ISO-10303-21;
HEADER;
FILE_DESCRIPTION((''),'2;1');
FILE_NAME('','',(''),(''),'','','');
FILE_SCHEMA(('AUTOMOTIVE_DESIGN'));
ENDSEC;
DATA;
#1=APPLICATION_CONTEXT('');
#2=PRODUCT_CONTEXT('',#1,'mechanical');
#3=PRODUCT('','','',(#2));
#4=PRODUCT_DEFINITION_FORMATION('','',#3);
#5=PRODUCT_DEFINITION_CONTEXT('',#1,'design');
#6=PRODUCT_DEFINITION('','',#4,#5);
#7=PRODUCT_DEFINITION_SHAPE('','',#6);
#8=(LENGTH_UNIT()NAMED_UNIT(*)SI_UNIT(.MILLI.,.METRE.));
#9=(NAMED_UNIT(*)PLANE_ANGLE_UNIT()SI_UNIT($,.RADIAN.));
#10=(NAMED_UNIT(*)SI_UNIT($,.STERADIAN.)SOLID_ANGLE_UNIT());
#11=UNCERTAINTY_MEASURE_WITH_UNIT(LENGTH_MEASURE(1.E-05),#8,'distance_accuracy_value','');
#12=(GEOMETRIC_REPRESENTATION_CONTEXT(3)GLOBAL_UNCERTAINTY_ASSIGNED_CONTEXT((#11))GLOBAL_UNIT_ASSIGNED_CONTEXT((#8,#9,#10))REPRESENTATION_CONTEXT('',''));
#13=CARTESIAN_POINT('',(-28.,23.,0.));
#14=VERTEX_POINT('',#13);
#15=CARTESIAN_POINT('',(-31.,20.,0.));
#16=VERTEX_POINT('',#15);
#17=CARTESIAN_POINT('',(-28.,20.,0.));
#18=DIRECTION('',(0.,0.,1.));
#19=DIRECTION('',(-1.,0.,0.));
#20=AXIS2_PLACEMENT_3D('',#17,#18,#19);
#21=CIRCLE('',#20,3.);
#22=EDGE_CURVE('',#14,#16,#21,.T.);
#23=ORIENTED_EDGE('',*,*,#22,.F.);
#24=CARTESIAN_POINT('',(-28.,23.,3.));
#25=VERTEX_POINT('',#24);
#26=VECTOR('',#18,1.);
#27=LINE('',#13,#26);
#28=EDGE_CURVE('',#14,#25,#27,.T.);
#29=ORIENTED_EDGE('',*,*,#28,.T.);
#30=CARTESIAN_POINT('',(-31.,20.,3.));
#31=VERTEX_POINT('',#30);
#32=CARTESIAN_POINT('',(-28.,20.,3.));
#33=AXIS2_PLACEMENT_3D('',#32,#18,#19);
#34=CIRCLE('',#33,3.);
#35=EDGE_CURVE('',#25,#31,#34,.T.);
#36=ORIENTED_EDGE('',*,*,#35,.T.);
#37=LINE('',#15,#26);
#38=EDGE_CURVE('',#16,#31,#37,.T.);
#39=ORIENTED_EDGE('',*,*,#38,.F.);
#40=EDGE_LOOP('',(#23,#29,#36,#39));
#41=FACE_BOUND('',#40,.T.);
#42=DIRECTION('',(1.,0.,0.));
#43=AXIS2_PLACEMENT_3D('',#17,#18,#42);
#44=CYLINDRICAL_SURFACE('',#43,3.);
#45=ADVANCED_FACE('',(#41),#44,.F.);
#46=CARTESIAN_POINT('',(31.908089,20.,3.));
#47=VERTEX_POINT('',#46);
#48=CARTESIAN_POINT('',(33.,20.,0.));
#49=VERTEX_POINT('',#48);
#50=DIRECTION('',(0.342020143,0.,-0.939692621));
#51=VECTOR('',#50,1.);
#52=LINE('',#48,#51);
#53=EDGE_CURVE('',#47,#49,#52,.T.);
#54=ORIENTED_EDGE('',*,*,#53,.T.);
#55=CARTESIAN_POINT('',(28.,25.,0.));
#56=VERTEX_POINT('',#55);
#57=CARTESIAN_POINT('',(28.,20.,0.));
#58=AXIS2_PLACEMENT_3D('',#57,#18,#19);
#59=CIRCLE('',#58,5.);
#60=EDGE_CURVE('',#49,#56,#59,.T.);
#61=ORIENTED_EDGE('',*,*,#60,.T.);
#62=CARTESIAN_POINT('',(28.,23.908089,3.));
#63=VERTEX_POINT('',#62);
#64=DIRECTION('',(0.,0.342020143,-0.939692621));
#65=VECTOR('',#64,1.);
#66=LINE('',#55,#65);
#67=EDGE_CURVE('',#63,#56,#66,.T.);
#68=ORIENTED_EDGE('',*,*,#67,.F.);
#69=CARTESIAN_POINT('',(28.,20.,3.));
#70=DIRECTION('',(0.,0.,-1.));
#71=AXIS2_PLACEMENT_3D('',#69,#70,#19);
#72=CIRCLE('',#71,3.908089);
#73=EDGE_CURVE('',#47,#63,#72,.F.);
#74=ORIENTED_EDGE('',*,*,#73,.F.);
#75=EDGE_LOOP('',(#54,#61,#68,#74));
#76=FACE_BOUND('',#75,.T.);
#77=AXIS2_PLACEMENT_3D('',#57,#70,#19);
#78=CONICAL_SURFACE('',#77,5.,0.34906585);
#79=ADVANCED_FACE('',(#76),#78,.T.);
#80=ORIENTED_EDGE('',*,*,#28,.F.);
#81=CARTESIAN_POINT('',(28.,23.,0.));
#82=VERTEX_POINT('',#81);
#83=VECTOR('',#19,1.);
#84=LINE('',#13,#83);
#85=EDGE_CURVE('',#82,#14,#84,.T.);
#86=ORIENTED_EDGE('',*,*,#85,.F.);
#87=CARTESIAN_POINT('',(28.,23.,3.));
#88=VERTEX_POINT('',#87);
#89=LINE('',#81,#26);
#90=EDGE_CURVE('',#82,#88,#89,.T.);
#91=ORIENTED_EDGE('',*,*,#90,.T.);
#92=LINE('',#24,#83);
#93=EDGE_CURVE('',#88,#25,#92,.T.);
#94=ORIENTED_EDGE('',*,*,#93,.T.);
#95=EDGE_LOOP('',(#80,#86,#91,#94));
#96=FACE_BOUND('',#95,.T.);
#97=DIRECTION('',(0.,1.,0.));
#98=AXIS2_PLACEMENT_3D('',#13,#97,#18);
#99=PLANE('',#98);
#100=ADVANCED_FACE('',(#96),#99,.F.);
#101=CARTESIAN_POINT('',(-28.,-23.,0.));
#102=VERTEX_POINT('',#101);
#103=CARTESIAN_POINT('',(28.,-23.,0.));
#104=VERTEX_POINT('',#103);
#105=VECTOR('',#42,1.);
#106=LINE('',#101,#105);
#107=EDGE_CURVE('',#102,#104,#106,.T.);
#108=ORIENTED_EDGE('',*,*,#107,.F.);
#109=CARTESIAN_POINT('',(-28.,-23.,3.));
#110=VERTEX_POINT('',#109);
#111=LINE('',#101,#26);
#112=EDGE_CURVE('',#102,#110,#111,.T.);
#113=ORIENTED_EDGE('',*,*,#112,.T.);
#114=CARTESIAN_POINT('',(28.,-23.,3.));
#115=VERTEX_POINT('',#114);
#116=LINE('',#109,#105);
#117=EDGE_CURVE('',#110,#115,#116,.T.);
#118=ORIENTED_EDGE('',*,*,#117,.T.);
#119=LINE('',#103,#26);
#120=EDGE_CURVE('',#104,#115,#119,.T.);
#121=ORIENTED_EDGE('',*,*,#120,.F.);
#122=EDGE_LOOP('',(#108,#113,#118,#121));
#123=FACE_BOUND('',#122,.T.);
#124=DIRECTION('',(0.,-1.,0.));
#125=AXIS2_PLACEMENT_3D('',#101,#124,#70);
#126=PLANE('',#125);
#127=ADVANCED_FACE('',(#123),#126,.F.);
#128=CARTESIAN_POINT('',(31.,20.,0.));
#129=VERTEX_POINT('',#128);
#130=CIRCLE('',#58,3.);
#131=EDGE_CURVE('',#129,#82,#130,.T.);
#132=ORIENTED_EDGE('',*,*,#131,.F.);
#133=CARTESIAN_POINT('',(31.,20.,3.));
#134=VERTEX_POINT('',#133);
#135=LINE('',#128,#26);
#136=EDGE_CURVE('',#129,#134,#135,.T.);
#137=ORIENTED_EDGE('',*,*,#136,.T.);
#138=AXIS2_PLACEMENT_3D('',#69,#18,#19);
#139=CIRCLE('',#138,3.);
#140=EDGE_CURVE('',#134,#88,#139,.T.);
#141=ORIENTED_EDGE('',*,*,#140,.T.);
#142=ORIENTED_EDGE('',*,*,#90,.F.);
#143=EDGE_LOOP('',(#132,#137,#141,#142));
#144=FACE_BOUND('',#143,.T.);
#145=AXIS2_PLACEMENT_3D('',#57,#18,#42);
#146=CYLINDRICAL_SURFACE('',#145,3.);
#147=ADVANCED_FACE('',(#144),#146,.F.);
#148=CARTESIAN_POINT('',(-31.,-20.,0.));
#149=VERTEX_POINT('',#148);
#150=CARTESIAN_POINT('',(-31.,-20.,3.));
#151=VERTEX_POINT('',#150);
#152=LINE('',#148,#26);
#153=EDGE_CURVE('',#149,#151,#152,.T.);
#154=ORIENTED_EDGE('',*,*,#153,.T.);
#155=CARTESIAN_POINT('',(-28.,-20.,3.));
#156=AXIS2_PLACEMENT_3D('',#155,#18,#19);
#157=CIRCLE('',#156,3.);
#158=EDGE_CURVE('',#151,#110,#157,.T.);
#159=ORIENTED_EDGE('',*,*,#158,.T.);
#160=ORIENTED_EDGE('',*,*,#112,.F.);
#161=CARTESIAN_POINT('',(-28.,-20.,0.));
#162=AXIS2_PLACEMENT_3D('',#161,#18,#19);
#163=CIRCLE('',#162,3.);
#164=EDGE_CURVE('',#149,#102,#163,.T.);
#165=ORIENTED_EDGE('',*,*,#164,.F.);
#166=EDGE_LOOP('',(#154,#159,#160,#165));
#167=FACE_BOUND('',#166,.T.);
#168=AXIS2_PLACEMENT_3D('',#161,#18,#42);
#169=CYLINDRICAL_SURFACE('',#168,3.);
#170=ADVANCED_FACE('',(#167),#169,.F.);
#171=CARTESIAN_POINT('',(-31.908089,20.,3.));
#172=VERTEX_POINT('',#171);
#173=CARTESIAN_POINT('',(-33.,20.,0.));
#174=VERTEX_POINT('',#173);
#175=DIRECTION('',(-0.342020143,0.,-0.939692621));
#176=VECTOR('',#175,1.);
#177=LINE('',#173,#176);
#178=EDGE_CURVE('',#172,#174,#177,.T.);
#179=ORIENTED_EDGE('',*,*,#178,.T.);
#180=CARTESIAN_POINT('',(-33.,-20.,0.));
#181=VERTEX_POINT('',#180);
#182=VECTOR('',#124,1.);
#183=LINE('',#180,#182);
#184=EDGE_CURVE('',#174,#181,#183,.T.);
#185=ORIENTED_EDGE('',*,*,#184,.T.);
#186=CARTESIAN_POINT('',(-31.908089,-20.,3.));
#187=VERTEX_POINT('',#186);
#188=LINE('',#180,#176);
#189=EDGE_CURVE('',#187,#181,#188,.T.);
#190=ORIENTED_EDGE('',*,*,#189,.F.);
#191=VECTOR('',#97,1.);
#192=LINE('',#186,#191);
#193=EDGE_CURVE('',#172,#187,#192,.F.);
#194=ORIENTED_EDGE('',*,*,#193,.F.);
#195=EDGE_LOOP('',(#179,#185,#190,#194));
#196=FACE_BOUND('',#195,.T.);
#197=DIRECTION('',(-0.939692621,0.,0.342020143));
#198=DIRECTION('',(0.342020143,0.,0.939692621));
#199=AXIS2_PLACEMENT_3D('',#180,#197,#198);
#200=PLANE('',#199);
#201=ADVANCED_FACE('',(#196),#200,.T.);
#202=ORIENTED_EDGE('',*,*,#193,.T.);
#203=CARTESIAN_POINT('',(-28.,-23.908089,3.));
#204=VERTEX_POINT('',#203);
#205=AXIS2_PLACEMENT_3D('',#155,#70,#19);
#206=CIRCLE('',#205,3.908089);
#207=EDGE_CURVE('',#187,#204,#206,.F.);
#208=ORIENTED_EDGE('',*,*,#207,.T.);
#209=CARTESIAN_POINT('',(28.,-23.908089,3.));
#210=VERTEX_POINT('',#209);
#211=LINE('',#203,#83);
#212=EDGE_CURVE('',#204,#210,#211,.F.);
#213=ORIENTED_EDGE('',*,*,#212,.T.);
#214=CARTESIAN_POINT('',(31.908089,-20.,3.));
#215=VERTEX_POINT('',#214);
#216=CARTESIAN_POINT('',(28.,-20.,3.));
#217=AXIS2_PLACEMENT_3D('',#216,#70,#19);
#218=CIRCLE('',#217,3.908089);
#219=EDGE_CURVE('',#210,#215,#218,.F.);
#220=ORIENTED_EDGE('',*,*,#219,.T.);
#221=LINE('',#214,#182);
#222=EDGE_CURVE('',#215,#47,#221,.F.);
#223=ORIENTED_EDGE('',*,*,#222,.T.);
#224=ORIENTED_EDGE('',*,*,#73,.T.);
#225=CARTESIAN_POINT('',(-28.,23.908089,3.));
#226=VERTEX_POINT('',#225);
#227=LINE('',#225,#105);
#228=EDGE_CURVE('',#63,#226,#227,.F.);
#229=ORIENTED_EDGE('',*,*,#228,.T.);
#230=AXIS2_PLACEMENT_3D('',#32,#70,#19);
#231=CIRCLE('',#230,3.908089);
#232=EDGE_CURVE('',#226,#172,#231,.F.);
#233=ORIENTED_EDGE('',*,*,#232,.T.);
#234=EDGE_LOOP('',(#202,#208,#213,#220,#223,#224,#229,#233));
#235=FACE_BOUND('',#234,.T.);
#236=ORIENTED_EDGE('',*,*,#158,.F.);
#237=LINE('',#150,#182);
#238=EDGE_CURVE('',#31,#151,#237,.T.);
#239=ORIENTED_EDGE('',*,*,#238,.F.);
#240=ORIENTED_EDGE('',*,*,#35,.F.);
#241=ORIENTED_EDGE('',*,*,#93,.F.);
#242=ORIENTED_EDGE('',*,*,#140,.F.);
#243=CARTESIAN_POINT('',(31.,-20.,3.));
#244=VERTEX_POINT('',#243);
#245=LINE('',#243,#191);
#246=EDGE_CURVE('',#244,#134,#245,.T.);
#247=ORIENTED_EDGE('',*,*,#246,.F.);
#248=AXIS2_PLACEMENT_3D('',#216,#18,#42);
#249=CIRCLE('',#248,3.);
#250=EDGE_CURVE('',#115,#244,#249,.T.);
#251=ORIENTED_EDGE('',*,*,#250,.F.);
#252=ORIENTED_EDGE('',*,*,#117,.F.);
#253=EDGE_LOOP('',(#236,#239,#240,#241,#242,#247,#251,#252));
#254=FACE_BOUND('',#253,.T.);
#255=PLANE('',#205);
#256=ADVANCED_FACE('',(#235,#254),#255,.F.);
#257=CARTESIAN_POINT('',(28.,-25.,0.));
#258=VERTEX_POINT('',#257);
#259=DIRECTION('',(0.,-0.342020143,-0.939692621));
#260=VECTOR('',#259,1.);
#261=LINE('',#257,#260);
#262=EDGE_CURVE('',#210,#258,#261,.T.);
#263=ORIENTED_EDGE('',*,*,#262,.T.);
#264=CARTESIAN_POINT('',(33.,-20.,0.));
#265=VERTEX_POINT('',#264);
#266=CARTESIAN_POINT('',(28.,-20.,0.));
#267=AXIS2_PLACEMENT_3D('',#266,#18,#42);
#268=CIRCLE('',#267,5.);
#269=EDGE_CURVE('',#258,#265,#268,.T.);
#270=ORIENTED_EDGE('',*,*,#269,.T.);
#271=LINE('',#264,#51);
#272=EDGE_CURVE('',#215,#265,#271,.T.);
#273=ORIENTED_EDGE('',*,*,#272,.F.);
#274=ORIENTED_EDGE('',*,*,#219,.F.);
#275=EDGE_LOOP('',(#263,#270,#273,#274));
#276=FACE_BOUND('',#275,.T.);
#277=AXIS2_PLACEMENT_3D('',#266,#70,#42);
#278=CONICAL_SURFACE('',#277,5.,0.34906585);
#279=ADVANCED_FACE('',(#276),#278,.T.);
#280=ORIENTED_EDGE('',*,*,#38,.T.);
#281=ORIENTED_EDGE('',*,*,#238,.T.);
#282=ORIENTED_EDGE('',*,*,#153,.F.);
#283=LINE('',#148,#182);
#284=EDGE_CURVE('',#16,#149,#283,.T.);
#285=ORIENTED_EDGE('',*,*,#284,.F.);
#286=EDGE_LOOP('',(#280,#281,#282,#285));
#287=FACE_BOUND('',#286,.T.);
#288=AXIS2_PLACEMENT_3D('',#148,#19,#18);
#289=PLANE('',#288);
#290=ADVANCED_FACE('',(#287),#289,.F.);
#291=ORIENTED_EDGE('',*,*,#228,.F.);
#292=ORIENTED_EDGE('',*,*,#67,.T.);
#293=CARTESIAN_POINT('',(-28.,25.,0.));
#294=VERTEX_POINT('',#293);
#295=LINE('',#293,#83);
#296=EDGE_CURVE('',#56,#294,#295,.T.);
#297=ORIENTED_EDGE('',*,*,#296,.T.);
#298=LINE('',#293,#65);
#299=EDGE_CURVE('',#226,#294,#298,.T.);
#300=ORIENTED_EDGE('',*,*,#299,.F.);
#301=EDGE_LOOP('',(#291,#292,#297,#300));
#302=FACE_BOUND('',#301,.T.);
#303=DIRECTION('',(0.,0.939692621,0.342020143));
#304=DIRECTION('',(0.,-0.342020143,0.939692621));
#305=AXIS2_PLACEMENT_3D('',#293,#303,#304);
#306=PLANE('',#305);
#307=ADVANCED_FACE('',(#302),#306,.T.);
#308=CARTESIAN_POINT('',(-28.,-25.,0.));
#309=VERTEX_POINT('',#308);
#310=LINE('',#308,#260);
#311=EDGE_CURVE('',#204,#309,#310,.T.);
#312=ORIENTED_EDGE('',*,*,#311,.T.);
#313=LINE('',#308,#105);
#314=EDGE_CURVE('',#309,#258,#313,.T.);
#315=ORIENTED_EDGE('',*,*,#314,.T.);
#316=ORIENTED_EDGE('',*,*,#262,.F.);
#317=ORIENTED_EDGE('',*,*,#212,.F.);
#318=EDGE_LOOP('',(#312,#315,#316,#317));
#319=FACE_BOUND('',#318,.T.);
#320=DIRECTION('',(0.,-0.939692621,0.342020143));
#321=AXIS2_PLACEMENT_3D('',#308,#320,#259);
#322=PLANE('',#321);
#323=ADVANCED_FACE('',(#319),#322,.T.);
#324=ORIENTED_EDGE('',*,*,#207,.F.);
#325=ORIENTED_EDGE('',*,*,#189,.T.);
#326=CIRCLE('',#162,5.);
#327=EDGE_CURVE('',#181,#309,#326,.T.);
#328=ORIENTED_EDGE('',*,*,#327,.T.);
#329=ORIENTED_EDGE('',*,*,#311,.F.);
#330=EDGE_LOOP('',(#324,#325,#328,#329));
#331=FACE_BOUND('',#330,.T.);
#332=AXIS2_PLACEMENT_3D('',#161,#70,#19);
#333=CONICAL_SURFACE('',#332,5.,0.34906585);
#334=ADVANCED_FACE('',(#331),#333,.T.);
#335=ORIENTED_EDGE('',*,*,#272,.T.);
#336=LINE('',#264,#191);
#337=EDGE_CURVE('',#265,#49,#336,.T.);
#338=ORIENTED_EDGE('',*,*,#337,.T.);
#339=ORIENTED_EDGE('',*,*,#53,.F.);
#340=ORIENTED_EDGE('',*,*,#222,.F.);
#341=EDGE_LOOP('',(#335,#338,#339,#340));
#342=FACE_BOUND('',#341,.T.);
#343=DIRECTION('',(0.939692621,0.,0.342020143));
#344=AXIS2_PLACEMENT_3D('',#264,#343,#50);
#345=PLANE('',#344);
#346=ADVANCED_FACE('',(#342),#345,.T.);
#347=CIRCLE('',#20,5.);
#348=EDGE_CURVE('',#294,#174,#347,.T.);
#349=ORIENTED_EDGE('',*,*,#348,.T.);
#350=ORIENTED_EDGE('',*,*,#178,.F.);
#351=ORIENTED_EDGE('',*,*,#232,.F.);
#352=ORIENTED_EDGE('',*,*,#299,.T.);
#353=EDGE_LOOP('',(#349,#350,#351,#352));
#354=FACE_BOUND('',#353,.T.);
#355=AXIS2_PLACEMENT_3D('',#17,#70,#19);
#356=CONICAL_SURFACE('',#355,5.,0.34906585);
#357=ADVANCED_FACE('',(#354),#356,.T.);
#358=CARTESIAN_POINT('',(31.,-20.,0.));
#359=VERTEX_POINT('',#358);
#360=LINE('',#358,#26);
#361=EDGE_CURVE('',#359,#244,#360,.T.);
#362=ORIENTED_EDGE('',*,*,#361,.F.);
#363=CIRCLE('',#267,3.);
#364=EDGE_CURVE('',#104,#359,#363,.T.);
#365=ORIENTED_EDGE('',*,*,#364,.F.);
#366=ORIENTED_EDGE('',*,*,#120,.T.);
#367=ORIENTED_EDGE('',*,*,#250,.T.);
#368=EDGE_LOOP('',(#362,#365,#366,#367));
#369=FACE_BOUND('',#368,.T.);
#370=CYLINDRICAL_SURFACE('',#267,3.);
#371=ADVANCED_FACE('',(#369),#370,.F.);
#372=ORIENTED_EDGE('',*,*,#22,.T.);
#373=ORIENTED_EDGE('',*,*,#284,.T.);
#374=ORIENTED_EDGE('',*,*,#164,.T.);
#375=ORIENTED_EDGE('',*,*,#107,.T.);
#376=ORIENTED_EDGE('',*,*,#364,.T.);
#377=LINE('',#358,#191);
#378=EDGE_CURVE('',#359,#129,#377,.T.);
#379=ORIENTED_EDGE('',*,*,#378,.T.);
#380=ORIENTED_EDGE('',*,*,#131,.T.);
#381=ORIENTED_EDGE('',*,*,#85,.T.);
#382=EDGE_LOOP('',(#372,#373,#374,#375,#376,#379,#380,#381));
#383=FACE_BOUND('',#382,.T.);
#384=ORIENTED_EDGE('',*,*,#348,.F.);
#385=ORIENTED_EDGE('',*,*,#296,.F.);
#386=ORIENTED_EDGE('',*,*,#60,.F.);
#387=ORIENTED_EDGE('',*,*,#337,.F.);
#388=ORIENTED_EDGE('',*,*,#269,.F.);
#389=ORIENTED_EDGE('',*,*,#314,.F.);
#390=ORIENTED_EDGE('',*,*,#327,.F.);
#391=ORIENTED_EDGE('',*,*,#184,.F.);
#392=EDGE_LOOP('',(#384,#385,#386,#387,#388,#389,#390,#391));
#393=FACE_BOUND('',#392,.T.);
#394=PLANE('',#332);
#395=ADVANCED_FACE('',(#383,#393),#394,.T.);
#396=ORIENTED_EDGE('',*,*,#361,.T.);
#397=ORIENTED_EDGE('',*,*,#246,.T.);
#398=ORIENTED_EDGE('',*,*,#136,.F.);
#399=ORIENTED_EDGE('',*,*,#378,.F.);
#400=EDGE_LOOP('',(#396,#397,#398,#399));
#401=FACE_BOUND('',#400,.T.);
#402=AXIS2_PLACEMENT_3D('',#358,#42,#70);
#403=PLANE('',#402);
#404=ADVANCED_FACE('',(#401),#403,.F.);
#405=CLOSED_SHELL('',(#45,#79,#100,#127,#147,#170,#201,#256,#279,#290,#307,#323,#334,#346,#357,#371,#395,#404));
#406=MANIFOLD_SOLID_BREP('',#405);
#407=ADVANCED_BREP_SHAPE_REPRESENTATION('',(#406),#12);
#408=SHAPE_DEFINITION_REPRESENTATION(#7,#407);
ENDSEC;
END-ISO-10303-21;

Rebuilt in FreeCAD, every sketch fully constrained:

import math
import FreeCAD as App
import Part
import Sketcher
Q = App.Units.Quantity

doc = App.newDocument("Part")
params = doc.addObject("Spreadsheet::Sheet", "Params")
for row, (alias, value) in enumerate([
    ("sketch1_radius", "5 mm"),
    ("sketch1_width", "56 mm"),
    ("sketch1_height", "40 mm"),
    ("pad1_length", "3 mm"),
    ("pad1_taper", "-20 deg"),
    ("sketch2_radius", "3 mm"),
    ("sketch2_width", "56 mm"),
    ("sketch2_height", "40 mm"),
], start=1):
    params.set(f"A{row}", alias)
    params.set(f"B{row}", "=" + value)
    params.setAlias(f"B{row}", alias)

body = doc.addObject("PartDesign::Body", "Body")

sketch1 = body.newObject("Sketcher::SketchObject", "Sketch")
sketch1.AttachmentSupport = (doc.getObject("XY_Plane"), [""])
sketch1.MapMode = "FlatFace"
sketch1.addGeometry(Part.LineSegment(App.Vector(-28, -25, 0), App.Vector(28, -25, 0)), False)
sketch1.addGeometry(Part.ArcOfCircle(Part.Circle(App.Vector(28, -20, 0), App.Vector(0, 0, 1), 5), math.radians(-90), math.radians(0)), False)
sketch1.addGeometry(Part.LineSegment(App.Vector(33, -20, 0), App.Vector(33, 20, 0)), False)
sketch1.addGeometry(Part.ArcOfCircle(Part.Circle(App.Vector(28, 20, 0), App.Vector(0, 0, 1), 5), math.radians(0), math.radians(90)), False)
sketch1.addGeometry(Part.LineSegment(App.Vector(28, 25, 0), App.Vector(-28, 25, 0)), False)
sketch1.addGeometry(Part.ArcOfCircle(Part.Circle(App.Vector(-28, 20, 0), App.Vector(0, 0, 1), 5), math.radians(90), math.radians(180)), False)
sketch1.addGeometry(Part.LineSegment(App.Vector(-33, 20, 0), App.Vector(-33, -20, 0)), False)
sketch1.addGeometry(Part.ArcOfCircle(Part.Circle(App.Vector(-28, -20, 0), App.Vector(0, 0, 1), 5), math.radians(180), math.radians(270)), False)
sketch1.addConstraint(Sketcher.Constraint("Tangent", 0, 2, 1, 1))
sketch1.addConstraint(Sketcher.Constraint("Tangent", 1, 2, 2, 1))
sketch1.addConstraint(Sketcher.Constraint("Tangent", 2, 2, 3, 1))
sketch1.addConstraint(Sketcher.Constraint("Tangent", 3, 2, 4, 1))
sketch1.addConstraint(Sketcher.Constraint("Tangent", 4, 2, 5, 1))
sketch1.addConstraint(Sketcher.Constraint("Tangent", 5, 2, 6, 1))
sketch1.addConstraint(Sketcher.Constraint("Tangent", 6, 2, 7, 1))
sketch1.addConstraint(Sketcher.Constraint("Tangent", 7, 2, 0, 1))
sketch1.addConstraint(Sketcher.Constraint("Horizontal", 0))
sketch1.addConstraint(Sketcher.Constraint("Vertical", 2))
sketch1.addConstraint(Sketcher.Constraint("Horizontal", 4))
sketch1.addConstraint(Sketcher.Constraint("Vertical", 6))
sketch1.addConstraint(Sketcher.Constraint("Equal", 1, 3))
sketch1.addConstraint(Sketcher.Constraint("Equal", 3, 5))
sketch1.addConstraint(Sketcher.Constraint("Equal", 5, 7))
sketch1.addConstraint(Sketcher.Constraint("Symmetric", 1, 3, 5, 3, -1, 1))
sketch1.addConstraint(Sketcher.Constraint("Radius", 1, Q("5 mm")))
sketch1.addConstraint(Sketcher.Constraint("DistanceX", 0, 1, 0, 2, Q("56 mm")))
sketch1.addConstraint(Sketcher.Constraint("DistanceY", 2, 1, 2, 2, Q("40 mm")))
sketch1.setExpression("Constraints[16]", "Params.sketch1_radius")
sketch1.setExpression("Constraints[17]", "Params.sketch1_width")
sketch1.setExpression("Constraints[18]", "Params.sketch1_height")
pad1 = body.newObject("PartDesign::Pad", "Pad")
pad1.Profile = sketch1
pad1.setExpression("Length", "Params.pad1_length")
pad1.setExpression("TaperAngle", "Params.pad1_taper")

sketch2 = body.newObject("Sketcher::SketchObject", "Sketch001")
sketch2.AttachmentSupport = (doc.getObject("XY_Plane"), [""])
sketch2.MapMode = "FlatFace"
sketch2.AttachmentOffset = App.Placement(App.Vector(0, 0, 3), App.Rotation())
sketch2.addGeometry(Part.LineSegment(App.Vector(-28, -23, 0), App.Vector(28, -23, 0)), False)
sketch2.addGeometry(Part.ArcOfCircle(Part.Circle(App.Vector(28, -20, 0), App.Vector(0, 0, 1), 3), math.radians(-90), math.radians(0)), False)
sketch2.addGeometry(Part.LineSegment(App.Vector(31, -20, 0), App.Vector(31, 20, 0)), False)
sketch2.addGeometry(Part.ArcOfCircle(Part.Circle(App.Vector(28, 20, 0), App.Vector(0, 0, 1), 3), math.radians(0), math.radians(90)), False)
sketch2.addGeometry(Part.LineSegment(App.Vector(28, 23, 0), App.Vector(-28, 23, 0)), False)
sketch2.addGeometry(Part.ArcOfCircle(Part.Circle(App.Vector(-28, 20, 0), App.Vector(0, 0, 1), 3), math.radians(90), math.radians(180)), False)
sketch2.addGeometry(Part.LineSegment(App.Vector(-31, 20, 0), App.Vector(-31, -20, 0)), False)
sketch2.addGeometry(Part.ArcOfCircle(Part.Circle(App.Vector(-28, -20, 0), App.Vector(0, 0, 1), 3), math.radians(180), math.radians(270)), False)
sketch2.addConstraint(Sketcher.Constraint("Tangent", 0, 2, 1, 1))
sketch2.addConstraint(Sketcher.Constraint("Tangent", 1, 2, 2, 1))
sketch2.addConstraint(Sketcher.Constraint("Tangent", 2, 2, 3, 1))
sketch2.addConstraint(Sketcher.Constraint("Tangent", 3, 2, 4, 1))
sketch2.addConstraint(Sketcher.Constraint("Tangent", 4, 2, 5, 1))
sketch2.addConstraint(Sketcher.Constraint("Tangent", 5, 2, 6, 1))
sketch2.addConstraint(Sketcher.Constraint("Tangent", 6, 2, 7, 1))
sketch2.addConstraint(Sketcher.Constraint("Tangent", 7, 2, 0, 1))
sketch2.addConstraint(Sketcher.Constraint("Horizontal", 0))
sketch2.addConstraint(Sketcher.Constraint("Vertical", 2))
sketch2.addConstraint(Sketcher.Constraint("Horizontal", 4))
sketch2.addConstraint(Sketcher.Constraint("Vertical", 6))
sketch2.addConstraint(Sketcher.Constraint("Equal", 1, 3))
sketch2.addConstraint(Sketcher.Constraint("Equal", 3, 5))
sketch2.addConstraint(Sketcher.Constraint("Equal", 5, 7))
sketch2.addConstraint(Sketcher.Constraint("Symmetric", 1, 3, 5, 3, -1, 1))
sketch2.addConstraint(Sketcher.Constraint("Radius", 1, Q("3 mm")))
sketch2.addConstraint(Sketcher.Constraint("DistanceX", 0, 1, 0, 2, Q("56 mm")))
sketch2.addConstraint(Sketcher.Constraint("DistanceY", 2, 1, 2, 2, Q("40 mm")))
sketch2.setExpression("Constraints[16]", "Params.sketch2_radius")
sketch2.setExpression("Constraints[17]", "Params.sketch2_width")
sketch2.setExpression("Constraints[18]", "Params.sketch2_height")
pocket1 = body.newObject("PartDesign::Pocket", "Pocket")
pocket1.Profile = sketch2
pocket1.Type = "ThroughAll"

doc.recompute()
